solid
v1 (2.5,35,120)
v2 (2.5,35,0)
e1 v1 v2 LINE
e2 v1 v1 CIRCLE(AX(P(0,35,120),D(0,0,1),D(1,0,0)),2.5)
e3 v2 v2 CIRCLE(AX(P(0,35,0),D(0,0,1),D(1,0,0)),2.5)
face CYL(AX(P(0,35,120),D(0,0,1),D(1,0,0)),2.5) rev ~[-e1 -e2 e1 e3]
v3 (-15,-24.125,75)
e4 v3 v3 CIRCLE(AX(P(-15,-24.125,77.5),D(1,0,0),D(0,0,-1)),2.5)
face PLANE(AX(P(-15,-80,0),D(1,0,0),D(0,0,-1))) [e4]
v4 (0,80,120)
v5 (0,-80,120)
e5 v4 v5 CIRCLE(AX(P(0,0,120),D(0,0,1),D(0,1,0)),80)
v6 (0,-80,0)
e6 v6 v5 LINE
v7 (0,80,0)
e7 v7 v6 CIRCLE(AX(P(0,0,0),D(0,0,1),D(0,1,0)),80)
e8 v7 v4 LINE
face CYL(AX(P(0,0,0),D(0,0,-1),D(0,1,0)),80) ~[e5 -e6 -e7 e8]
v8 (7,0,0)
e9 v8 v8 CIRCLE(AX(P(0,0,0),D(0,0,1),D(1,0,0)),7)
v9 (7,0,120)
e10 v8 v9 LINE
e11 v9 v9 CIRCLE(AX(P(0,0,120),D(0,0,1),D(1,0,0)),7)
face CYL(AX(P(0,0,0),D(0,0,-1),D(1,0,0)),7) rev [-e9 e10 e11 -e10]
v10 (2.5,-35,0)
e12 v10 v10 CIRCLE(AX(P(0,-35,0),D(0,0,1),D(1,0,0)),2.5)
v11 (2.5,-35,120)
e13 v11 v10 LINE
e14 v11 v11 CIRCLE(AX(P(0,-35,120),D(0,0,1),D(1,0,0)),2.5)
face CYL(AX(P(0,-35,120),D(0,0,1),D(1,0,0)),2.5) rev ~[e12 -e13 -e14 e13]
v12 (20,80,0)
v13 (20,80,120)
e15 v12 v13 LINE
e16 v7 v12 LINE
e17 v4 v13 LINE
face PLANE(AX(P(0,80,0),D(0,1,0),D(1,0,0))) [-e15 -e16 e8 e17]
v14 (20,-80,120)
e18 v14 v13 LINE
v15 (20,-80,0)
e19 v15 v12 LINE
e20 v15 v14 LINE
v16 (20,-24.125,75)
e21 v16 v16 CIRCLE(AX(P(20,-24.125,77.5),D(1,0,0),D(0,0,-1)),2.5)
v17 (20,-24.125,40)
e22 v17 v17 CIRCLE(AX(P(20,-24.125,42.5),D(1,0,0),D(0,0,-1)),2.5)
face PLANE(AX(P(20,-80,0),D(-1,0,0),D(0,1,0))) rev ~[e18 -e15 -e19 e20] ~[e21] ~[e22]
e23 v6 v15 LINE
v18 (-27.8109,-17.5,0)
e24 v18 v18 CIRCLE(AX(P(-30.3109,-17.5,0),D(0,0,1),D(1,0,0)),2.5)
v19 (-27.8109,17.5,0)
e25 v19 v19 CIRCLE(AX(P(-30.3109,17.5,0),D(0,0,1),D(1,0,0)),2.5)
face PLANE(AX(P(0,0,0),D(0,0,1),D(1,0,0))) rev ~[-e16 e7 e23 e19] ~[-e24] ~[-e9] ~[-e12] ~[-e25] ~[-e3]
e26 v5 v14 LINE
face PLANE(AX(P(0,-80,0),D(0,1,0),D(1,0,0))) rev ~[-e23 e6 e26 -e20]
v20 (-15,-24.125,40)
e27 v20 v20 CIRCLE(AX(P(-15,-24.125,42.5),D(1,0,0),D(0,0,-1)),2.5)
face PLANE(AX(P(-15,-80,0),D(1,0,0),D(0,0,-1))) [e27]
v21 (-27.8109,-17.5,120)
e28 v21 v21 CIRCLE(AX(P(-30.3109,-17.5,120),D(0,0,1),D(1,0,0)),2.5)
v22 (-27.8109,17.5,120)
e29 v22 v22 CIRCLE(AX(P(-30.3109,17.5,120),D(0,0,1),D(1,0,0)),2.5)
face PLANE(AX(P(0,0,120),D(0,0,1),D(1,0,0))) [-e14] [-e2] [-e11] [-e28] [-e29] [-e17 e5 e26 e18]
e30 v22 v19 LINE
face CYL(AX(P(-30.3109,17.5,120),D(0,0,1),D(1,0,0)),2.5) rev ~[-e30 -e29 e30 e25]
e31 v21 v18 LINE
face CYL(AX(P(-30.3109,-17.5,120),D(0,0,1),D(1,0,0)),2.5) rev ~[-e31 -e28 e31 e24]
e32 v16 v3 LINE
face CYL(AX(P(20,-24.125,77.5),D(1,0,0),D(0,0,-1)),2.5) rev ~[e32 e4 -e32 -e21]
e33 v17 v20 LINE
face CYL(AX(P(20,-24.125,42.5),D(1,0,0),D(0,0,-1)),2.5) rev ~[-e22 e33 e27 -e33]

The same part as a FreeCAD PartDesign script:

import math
import FreeCAD as App
import Part
import Sketcher
Q = App.Units.Quantity

doc = App.newDocument("Part")
params = doc.addObject("Spreadsheet::Sheet", "Params")
for row, (alias, value) in enumerate([
    ("sketch1_diameter", "14 mm"),
    ("sketch1_radius", "80 mm"),
    ("sketch1_width", "20 mm"),
    ("pad1_length", "120 mm"),
    ("sketch2_diameter", "5 mm"),
    ("pocket1_length", "35 mm"),
    ("sketch3_diameter", "5 mm"),
], start=1):
    params.set(f"A{row}", alias)
    params.set(f"B{row}", "=" + value)
    params.setAlias(f"B{row}", alias)

body = doc.addObject("PartDesign::Body", "Body")

sketch1 = body.newObject("Sketcher::SketchObject", "Sketch")
sketch1.AttachmentSupport = (doc.getObject("XY_Plane"), [""])
sketch1.MapMode = "FlatFace"
sketch1.addGeometry([
    Part.LineSegment(App.Vector(20, 80, 0), App.Vector(0, 80, 0)),
    Part.ArcOfCircle(Part.Circle(App.Vector(0, 0, 0), App.Vector(0, 0, 1), 80), math.radians(90), math.radians(270)),
    Part.LineSegment(App.Vector(0, -80, 0), App.Vector(20, -80, 0)),
    Part.LineSegment(App.Vector(20, -80, 0), App.Vector(20, 80, 0)),
    Part.Circle(App.Vector(0, 0, 0), App.Vector(0, 0, 1), 7),
], False)
sketch1.addConstraint([
    Sketcher.Constraint("Tangent", 0, 2, 1, 1),
    Sketcher.Constraint("Tangent", 1, 2, 2, 1),
    Sketcher.Constraint("Coincident", 2, 2, 3, 1),
    Sketcher.Constraint("Coincident", 3, 2, 0, 1),
    Sketcher.Constraint("Horizontal", 0),
    Sketcher.Constraint("Horizontal", 2),
    Sketcher.Constraint("Vertical", 3),
    Sketcher.Constraint("Coincident", 1, 3, -1, 1),
    Sketcher.Constraint("Coincident", 4, 3, -1, 1),
    Sketcher.Constraint("Diameter", 4, Q("14 mm")),
    Sketcher.Constraint("Radius", 1, Q("80 mm")),
    Sketcher.Constraint("DistanceX", 0, 2, 0, 1, Q("20 mm")),
])
sketch1.setExpression("Constraints[9]", "Params.sketch1_diameter")
sketch1.setExpression("Constraints[10]", "Params.sketch1_radius")
sketch1.setExpression("Constraints[11]", "Params.sketch1_width")
pad1 = body.newObject("PartDesign::Pad", "Pad")
pad1.Profile = sketch1
pad1.setExpression("Length", "Params.pad1_length")

sketch2 = body.newObject("Sketcher::SketchObject", "Sketch001")
sketch2.AttachmentSupport = (doc.getObject("YZ_Plane"), [""])
sketch2.MapMode = "FlatFace"
sketch2.AttachmentOffset = App.Placement(App.Vector(0, 0, 20), App.Rotation())
sketch2.addGeometry([
    Part.Circle(App.Vector(-24.1, 42.5, 0), App.Vector(0, 0, 1), 2.5),
    Part.Circle(App.Vector(-24.1, 77.5, 0), App.Vector(0, 0, 1), 2.5),
], False)
sketch2.addConstraint([
    Sketcher.Constraint("Equal", 0, 1),
    Sketcher.Constraint("Vertical", 0, 3, 1, 3),
    Sketcher.Constraint("Diameter", 0, Q("5 mm")),
    Sketcher.Constraint("DistanceY", 0, 3, 1, 3, Q("35 mm")),
    Sketcher.Constraint("DistanceY", -1, 1, 0, 3, Q("42.5 mm")),
    Sketcher.Constraint("DistanceX", 0, 3, -1, 1, Q("24.125 mm")),
])
sketch2.setExpression("Constraints[2]", "Params.sketch2_diameter")
pocket1 = body.newObject("PartDesign::Pocket", "Pocket")
pocket1.Profile = sketch2
pocket1.setExpression("Length", "Params.pocket1_length")

sketch3 = body.newObject("Sketcher::SketchObject", "Sketch002")
sketch3.AttachmentSupport = (doc.getObject("XY_Plane"), [""])
sketch3.MapMode = "FlatFace"
sketch3.AttachmentOffset = App.Placement(App.Vector(0, 0, 120), App.Rotation())
sketch3.addGeometry([
    Part.Circle(App.Vector(0, 35, 0), App.Vector(0, 0, 1), 2.5),
    Part.Circle(App.Vector(-30.3, 17.5, 0), App.Vector(0, 0, 1), 2.5),
    Part.Circle(App.Vector(-30.3, -17.5, 0), App.Vector(0, 0, 1), 2.5),
    Part.Circle(App.Vector(0, -35, 0), App.Vector(0, 0, 1), 2.5),
    Part.Circle(App.Vector(30.3, -17.5, 0), App.Vector(0, 0, 1), 2.5),
    Part.Circle(App.Vector(30.3, 17.5, 0), App.Vector(0, 0, 1), 2.5),
], False)
sketch3.addConstraint([
    Sketcher.Constraint("Equal", 0, 1),
    Sketcher.Constraint("Equal", 1, 2),
    Sketcher.Constraint("Equal", 2, 3),
    Sketcher.Constraint("Equal", 3, 4),
    Sketcher.Constraint("Equal", 4, 5),
    Sketcher.Constraint("Symmetric", 0, 3, 3, 3, -1, 1),
    Sketcher.Constraint("Symmetric", 1, 3, 4, 3, -1, 1),
    Sketcher.Constraint("Symmetric", 2, 3, 5, 3, -1, 1),
    Sketcher.Constraint("Symmetric", 2, 3, 4, 3, -2),
    Sketcher.Constraint("PointOnObject", 0, 3, -2),
    Sketcher.Constraint("Diameter", 0, Q("5 mm")),
    Sketcher.Constraint("DistanceY", -1, 1, 0, 3, Q("35 mm")),
    Sketcher.Constraint("DistanceY", 2, 3, 1, 3, Q("35 mm")),
    Sketcher.Constraint("DistanceX", 1, 3, -1, 1, Q("30.311 mm")),
])
sketch3.setExpression("Constraints[10]", "Params.sketch3_diameter")
pocket2 = body.newObject("PartDesign::Pocket", "Pocket001")
pocket2.Profile = sketch3
pocket2.Type = "ThroughAll"

doc.recompute()
